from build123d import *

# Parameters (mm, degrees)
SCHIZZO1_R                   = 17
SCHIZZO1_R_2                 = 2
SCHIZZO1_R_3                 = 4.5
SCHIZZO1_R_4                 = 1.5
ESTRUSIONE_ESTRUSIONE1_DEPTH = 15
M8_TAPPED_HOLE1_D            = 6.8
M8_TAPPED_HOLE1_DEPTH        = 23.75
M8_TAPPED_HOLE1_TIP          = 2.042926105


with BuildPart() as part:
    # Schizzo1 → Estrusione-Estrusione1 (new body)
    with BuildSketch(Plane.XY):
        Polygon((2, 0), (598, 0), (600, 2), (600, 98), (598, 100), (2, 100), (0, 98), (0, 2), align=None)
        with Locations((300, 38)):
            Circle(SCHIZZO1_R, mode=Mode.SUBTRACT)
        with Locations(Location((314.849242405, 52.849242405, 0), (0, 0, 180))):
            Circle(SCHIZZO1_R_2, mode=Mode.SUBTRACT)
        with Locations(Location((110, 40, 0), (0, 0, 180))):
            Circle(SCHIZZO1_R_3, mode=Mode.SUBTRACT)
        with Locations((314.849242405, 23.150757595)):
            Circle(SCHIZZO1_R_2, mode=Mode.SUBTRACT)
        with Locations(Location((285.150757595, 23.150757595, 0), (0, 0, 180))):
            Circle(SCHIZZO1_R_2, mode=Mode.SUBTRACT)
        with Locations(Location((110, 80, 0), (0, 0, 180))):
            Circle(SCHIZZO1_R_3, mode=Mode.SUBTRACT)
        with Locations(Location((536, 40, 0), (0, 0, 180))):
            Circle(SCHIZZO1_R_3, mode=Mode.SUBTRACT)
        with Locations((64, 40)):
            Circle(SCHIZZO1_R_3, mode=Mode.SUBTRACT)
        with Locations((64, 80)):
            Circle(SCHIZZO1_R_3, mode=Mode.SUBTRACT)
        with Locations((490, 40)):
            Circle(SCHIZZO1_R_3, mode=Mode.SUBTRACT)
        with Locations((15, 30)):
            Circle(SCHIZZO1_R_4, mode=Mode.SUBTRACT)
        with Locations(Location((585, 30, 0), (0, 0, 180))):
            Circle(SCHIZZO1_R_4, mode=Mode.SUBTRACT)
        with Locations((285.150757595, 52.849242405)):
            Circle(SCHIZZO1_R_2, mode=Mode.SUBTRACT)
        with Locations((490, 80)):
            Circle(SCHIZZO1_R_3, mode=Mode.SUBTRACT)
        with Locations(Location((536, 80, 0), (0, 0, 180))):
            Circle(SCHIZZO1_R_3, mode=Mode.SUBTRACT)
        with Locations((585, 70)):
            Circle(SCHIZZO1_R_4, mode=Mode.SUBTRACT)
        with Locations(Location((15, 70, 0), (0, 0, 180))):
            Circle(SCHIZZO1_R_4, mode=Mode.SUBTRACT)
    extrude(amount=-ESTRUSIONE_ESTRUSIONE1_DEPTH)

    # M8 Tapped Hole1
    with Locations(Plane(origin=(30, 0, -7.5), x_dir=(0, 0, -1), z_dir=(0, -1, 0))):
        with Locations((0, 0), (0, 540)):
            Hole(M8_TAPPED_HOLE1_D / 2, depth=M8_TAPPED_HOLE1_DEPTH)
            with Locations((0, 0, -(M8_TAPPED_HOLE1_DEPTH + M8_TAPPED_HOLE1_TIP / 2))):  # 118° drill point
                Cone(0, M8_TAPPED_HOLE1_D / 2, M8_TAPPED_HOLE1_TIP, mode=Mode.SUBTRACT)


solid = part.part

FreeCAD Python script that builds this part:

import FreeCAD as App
import Part
import Sketcher
from FreeCAD import Vector
Q = App.Units.Quantity

doc = App.newDocument("Part")
body = doc.addObject("PartDesign::Body", "Body")

sketch1 = body.newObject("Sketcher::SketchObject", "Sketch")
sketch1.AttachmentSupport = (doc.getObject("XY_Plane"), [""])
sketch1.MapMode = "FlatFace"
sketch1.addGeometry(Part.LineSegment(Vector(2, 0, 0), Vector(598, 0, 0)), False)
sketch1.addGeometry(Part.LineSegment(Vector(598, 0, 0), Vector(600, 2, 0)), False)
sketch1.addGeometry(Part.LineSegment(Vector(600, 2, 0), Vector(600, 98, 0)), False)
sketch1.addGeometry(Part.LineSegment(Vector(600, 98, 0), Vector(598, 100, 0)), False)
sketch1.addGeometry(Part.LineSegment(Vector(598, 100, 0), Vector(2, 100, 0)), False)
sketch1.addGeometry(Part.LineSegment(Vector(2, 100, 0), Vector(0, 98, 0)), False)
sketch1.addGeometry(Part.LineSegment(Vector(0, 98, 0), Vector(0, 2, 0)), False)
sketch1.addGeometry(Part.LineSegment(Vector(0, 2, 0), Vector(2, 0, 0)), False)
sketch1.addGeometry(Part.Circle(Vector(15, 30, 0), Vector(0, 0, 1), 1.5), False)
sketch1.addGeometry(Part.Circle(Vector(285.2, 23.2, 0), Vector(0, 0, 1), 2), False)
sketch1.addGeometry(Part.Circle(Vector(64, 40, 0), Vector(0, 0, 1), 4.5), False)
sketch1.addGeometry(Part.Circle(Vector(110, 40, 0), Vector(0, 0, 1), 4.5), False)
sketch1.addGeometry(Part.Circle(Vector(314.8, 23.2, 0), Vector(0, 0, 1), 2), False)
sketch1.addGeometry(Part.Circle(Vector(585, 30, 0), Vector(0, 0, 1), 1.5), False)
sketch1.addGeometry(Part.Circle(Vector(300, 38, 0), Vector(0, 0, 1), 17), False)
sketch1.addGeometry(Part.Circle(Vector(490, 40, 0), Vector(0, 0, 1), 4.5), False)
sketch1.addGeometry(Part.Circle(Vector(536, 40, 0), Vector(0, 0, 1), 4.5), False)
sketch1.addGeometry(Part.Circle(Vector(285.2, 52.8, 0), Vector(0, 0, 1), 2), False)
sketch1.addGeometry(Part.Circle(Vector(15, 70, 0), Vector(0, 0, 1), 1.5), False)
sketch1.addGeometry(Part.Circle(Vector(64, 80, 0), Vector(0, 0, 1), 4.5), False)
sketch1.addGeometry(Part.Circle(Vector(110, 80, 0), Vector(0, 0, 1), 4.5), False)
sketch1.addGeometry(Part.Circle(Vector(314.8, 52.8, 0), Vector(0, 0, 1), 2), False)
sketch1.addGeometry(Part.Circle(Vector(585, 70, 0), Vector(0, 0, 1), 1.5), False)
sketch1.addGeometry(Part.Circle(Vector(490, 80, 0), Vector(0, 0, 1), 4.5), False)
sketch1.addGeometry(Part.Circle(Vector(536, 80, 0), Vector(0, 0, 1), 4.5), False)
sketch1.addConstraint(Sketcher.Constraint("Coincident", 0, 2, 1, 1))
sketch1.addConstraint(Sketcher.Constraint("Coincident", 1, 2, 2, 1))
sketch1.addConstraint(Sketcher.Constraint("Coincident", 2, 2, 3, 1))
sketch1.addConstraint(Sketcher.Constraint("Coincident", 3, 2, 4, 1))
sketch1.addConstraint(Sketcher.Constraint("Coincident", 4, 2, 5, 1))
sketch1.addConstraint(Sketcher.Constraint("Coincident", 5, 2, 6, 1))
sketch1.addConstraint(Sketcher.Constraint("Coincident", 6, 2, 7, 1))
sketch1.addConstraint(Sketcher.Constraint("Coincident", 7, 2, 0, 1))
sketch1.addConstraint(Sketcher.Constraint("Horizontal", 0))
sketch1.addConstraint(Sketcher.Constraint("Vertical", 2))
sketch1.addConstraint(Sketcher.Constraint("Horizontal", 4))
sketch1.addConstraint(Sketcher.Constraint("Vertical", 6))
sketch1.addConstraint(Sketcher.Constraint("Equal", 10, 11))
sketch1.addConstraint(Sketcher.Constraint("Equal", 9, 12))
sketch1.addConstraint(Sketcher.Constraint("Equal", 8, 13))
sketch1.addConstraint(Sketcher.Constraint("Equal", 11, 15))
sketch1.addConstraint(Sketcher.Constraint("Equal", 15, 16))
sketch1.addConstraint(Sketcher.Constraint("Equal", 12, 17))
sketch1.addConstraint(Sketcher.Constraint("Equal", 13, 18))
sketch1.addConstraint(Sketcher.Constraint("Equal", 16, 19))
sketch1.addConstraint(Sketcher.Constraint("Equal", 19, 20))
sketch1.addConstraint(Sketcher.Constraint("Equal", 17, 21))
sketch1.addConstraint(Sketcher.Constraint("Equal", 18, 22))
sketch1.addConstraint(Sketcher.Constraint("Equal", 20, 23))
sketch1.addConstraint(Sketcher.Constraint("Equal", 23, 24))
sketch1.addConstraint(Sketcher.Constraint("PointOnObject", 0, 2, -1))
sketch1.addConstraint(Sketcher.Constraint("PointOnObject", 5, 2, -2))
sketch1.addConstraint(Sketcher.Constraint("Perpendicular", 1, 3))
sketch1.addConstraint(Sketcher.Constraint("Perpendicular", 3, 5))
sketch1.addConstraint(Sketcher.Constraint("Perpendicular", 5, 7))
sketch1.addConstraint(Sketcher.Constraint("Horizontal", 10, 3, 11, 3))
sketch1.addConstraint(Sketcher.Constraint("Horizontal", 9, 3, 12, 3))
sketch1.addConstraint(Sketcher.Constraint("Horizontal", 8, 3, 13, 3))
sketch1.addConstraint(Sketcher.Constraint("Horizontal", 11, 3, 15, 3))
sketch1.addConstraint(Sketcher.Constraint("Horizontal", 15, 3, 16, 3))
sketch1.addConstraint(Sketcher.Constraint("Horizontal", 19, 3, 20, 3))
sketch1.addConstraint(Sketcher.Constraint("Horizontal", 17, 3, 21, 3))
sketch1.addConstraint(Sketcher.Constraint("Horizontal", 18, 3, 22, 3))
sketch1.addConstraint(Sketcher.Constraint("Horizontal", 20, 3, 23, 3))
sketch1.addConstraint(Sketcher.Constraint("Horizontal", 23, 3, 24, 3))
sketch1.addConstraint(Sketcher.Constraint("Horizontal", 2, 2, 5, 2))
sketch1.addConstraint(Sketcher.Constraint("Horizontal", 1, 2, 6, 2))
sketch1.addConstraint(Sketcher.Constraint("Vertical", 9, 3, 17, 3))
sketch1.addConstraint(Sketcher.Constraint("Vertical", 8, 3, 18, 3))
sketch1.addConstraint(Sketcher.Constraint("Vertical", 10, 3, 19, 3))
sketch1.addConstraint(Sketcher.Constraint("Vertical", 11, 3, 20, 3))
sketch1.addConstraint(Sketcher.Constraint("Vertical", 12, 3, 21, 3))
sketch1.addConstraint(Sketcher.Constraint("Vertical", 13, 3, 22, 3))
sketch1.addConstraint(Sketcher.Constraint("Vertical", 15, 3, 23, 3))
sketch1.addConstraint(Sketcher.Constraint("Vertical", 16, 3, 24, 3))
sketch1.addConstraint(Sketcher.Constraint("Vertical", 0, 2, 3, 2))
sketch1.addConstraint(Sketcher.Constraint("Vertical", 4, 2, 7, 2))
sketch1.addConstraint(Sketcher.Constraint("Diameter", 8, Q("3 mm")))
sketch1.addConstraint(Sketcher.Constraint("Diameter", 9, Q("4 mm")))
sketch1.addConstraint(Sketcher.Constraint("Diameter", 10, Q("9 mm")))
sketch1.addConstraint(Sketcher.Constraint("Diameter", 14, Q("34 mm")))
sketch1.addConstraint(Sketcher.Constraint("DistanceX", 0, 1, 0, 2, Q("596 mm")))
sketch1.addConstraint(Sketcher.Constraint("DistanceY", 2, 1, 2, 2, Q("96 mm")))
sketch1.addConstraint(Sketcher.Constraint("DistanceX", -1, 1, 8, 3, Q("15 mm")))
sketch1.addConstraint(Sketcher.Constraint("DistanceY", -1, 1, 8, 3, Q("30 mm")))
sketch1.addConstraint(Sketcher.Constraint("DistanceX", -1, 1, 10, 3, Q("64 mm")))
sketch1.addConstraint(Sketcher.Constraint("DistanceY", -1, 1, 10, 3, Q("40 mm")))
sketch1.addConstraint(Sketcher.Constraint("DistanceX", -1, 1, 11, 3, Q("110 mm")))
sketch1.addConstraint(Sketcher.Constraint("DistanceX", -1, 1, 13, 3, Q("585 mm")))
sketch1.addConstraint(Sketcher.Constraint("DistanceX", -1, 1, 14, 3, Q("300 mm")))
sketch1.addConstraint(Sketcher.Constraint("DistanceY", -1, 1, 14, 3, Q("38 mm")))
sketch1.addConstraint(Sketcher.Constraint("DistanceX", -1, 1, 15, 3, Q("490 mm")))
sketch1.addConstraint(Sketcher.Constraint("DistanceX", -1, 1, 16, 3, Q("536 mm")))
sketch1.addConstraint(Sketcher.Constraint("DistanceY", -1, 1, 18, 3, Q("70 mm")))
sketch1.addConstraint(Sketcher.Constraint("DistanceY", -1, 1, 19, 3, Q("80 mm")))
sketch1.addConstraint(Sketcher.Constraint("DistanceX", -1, 1, 0, 2, Q("598 mm")))
sketch1.addConstraint(Sketcher.Constraint("DistanceX", -1, 1, 9, 3, Q("285.150758 mm")))
sketch1.addConstraint(Sketcher.Constraint("DistanceY", -1, 1, 9, 3, Q("23.150758 mm")))
sketch1.addConstraint(Sketcher.Constraint("DistanceX", -1, 1, 12, 3, Q("314.849242 mm")))
sketch1.addConstraint(Sketcher.Constraint("DistanceY", -1, 1, 17, 3, Q("52.849242 mm")))
pad1 = body.newObject("PartDesign::Pad", "Pad")
pad1.Profile = sketch1
pad1.Length = 15
pad1.Reversed = True

sketch2 = body.newObject("Sketcher::SketchObject", "Sketch001")
sketch2.AttachmentSupport = (doc.getObject("XZ_Plane"), [""])
sketch2.MapMode = "FlatFace"
sketch2.addGeometry(Part.Circle(Vector(30, -7.5, 0), Vector(0, 0, 1), 3.4), False)
sketch2.addGeometry(Part.Circle(Vector(570, -7.5, 0), Vector(0, 0, 1), 3.4), False)
sketch2.addConstraint(Sketcher.Constraint("Equal", 0, 1))
sketch2.addConstraint(Sketcher.Constraint("Horizontal", 0, 3, 1, 3))
sketch2.addConstraint(Sketcher.Constraint("Diameter", 0, Q("6.8 mm")))
sketch2.addConstraint(Sketcher.Constraint("DistanceX", -1, 1, 0, 3, Q("30 mm")))
sketch2.addConstraint(Sketcher.Constraint("DistanceX", -1, 1, 1, 3, Q("570 mm")))
sketch2.addConstraint(Sketcher.Constraint("DistanceY", 0, 3, -1, 1, Q("7.5 mm")))
doc.recompute()
hole = body.newObject("PartDesign::Hole", "Hole")
hole.Profile = sketch2
hole.ThreadType = "None"
hole.Diameter = 6.8
hole.DepthType = "Dimension"
hole.Depth = 23.75
hole.DrillPoint = "Angled"
hole.DrillPointAngle = 118

doc.recompute()
